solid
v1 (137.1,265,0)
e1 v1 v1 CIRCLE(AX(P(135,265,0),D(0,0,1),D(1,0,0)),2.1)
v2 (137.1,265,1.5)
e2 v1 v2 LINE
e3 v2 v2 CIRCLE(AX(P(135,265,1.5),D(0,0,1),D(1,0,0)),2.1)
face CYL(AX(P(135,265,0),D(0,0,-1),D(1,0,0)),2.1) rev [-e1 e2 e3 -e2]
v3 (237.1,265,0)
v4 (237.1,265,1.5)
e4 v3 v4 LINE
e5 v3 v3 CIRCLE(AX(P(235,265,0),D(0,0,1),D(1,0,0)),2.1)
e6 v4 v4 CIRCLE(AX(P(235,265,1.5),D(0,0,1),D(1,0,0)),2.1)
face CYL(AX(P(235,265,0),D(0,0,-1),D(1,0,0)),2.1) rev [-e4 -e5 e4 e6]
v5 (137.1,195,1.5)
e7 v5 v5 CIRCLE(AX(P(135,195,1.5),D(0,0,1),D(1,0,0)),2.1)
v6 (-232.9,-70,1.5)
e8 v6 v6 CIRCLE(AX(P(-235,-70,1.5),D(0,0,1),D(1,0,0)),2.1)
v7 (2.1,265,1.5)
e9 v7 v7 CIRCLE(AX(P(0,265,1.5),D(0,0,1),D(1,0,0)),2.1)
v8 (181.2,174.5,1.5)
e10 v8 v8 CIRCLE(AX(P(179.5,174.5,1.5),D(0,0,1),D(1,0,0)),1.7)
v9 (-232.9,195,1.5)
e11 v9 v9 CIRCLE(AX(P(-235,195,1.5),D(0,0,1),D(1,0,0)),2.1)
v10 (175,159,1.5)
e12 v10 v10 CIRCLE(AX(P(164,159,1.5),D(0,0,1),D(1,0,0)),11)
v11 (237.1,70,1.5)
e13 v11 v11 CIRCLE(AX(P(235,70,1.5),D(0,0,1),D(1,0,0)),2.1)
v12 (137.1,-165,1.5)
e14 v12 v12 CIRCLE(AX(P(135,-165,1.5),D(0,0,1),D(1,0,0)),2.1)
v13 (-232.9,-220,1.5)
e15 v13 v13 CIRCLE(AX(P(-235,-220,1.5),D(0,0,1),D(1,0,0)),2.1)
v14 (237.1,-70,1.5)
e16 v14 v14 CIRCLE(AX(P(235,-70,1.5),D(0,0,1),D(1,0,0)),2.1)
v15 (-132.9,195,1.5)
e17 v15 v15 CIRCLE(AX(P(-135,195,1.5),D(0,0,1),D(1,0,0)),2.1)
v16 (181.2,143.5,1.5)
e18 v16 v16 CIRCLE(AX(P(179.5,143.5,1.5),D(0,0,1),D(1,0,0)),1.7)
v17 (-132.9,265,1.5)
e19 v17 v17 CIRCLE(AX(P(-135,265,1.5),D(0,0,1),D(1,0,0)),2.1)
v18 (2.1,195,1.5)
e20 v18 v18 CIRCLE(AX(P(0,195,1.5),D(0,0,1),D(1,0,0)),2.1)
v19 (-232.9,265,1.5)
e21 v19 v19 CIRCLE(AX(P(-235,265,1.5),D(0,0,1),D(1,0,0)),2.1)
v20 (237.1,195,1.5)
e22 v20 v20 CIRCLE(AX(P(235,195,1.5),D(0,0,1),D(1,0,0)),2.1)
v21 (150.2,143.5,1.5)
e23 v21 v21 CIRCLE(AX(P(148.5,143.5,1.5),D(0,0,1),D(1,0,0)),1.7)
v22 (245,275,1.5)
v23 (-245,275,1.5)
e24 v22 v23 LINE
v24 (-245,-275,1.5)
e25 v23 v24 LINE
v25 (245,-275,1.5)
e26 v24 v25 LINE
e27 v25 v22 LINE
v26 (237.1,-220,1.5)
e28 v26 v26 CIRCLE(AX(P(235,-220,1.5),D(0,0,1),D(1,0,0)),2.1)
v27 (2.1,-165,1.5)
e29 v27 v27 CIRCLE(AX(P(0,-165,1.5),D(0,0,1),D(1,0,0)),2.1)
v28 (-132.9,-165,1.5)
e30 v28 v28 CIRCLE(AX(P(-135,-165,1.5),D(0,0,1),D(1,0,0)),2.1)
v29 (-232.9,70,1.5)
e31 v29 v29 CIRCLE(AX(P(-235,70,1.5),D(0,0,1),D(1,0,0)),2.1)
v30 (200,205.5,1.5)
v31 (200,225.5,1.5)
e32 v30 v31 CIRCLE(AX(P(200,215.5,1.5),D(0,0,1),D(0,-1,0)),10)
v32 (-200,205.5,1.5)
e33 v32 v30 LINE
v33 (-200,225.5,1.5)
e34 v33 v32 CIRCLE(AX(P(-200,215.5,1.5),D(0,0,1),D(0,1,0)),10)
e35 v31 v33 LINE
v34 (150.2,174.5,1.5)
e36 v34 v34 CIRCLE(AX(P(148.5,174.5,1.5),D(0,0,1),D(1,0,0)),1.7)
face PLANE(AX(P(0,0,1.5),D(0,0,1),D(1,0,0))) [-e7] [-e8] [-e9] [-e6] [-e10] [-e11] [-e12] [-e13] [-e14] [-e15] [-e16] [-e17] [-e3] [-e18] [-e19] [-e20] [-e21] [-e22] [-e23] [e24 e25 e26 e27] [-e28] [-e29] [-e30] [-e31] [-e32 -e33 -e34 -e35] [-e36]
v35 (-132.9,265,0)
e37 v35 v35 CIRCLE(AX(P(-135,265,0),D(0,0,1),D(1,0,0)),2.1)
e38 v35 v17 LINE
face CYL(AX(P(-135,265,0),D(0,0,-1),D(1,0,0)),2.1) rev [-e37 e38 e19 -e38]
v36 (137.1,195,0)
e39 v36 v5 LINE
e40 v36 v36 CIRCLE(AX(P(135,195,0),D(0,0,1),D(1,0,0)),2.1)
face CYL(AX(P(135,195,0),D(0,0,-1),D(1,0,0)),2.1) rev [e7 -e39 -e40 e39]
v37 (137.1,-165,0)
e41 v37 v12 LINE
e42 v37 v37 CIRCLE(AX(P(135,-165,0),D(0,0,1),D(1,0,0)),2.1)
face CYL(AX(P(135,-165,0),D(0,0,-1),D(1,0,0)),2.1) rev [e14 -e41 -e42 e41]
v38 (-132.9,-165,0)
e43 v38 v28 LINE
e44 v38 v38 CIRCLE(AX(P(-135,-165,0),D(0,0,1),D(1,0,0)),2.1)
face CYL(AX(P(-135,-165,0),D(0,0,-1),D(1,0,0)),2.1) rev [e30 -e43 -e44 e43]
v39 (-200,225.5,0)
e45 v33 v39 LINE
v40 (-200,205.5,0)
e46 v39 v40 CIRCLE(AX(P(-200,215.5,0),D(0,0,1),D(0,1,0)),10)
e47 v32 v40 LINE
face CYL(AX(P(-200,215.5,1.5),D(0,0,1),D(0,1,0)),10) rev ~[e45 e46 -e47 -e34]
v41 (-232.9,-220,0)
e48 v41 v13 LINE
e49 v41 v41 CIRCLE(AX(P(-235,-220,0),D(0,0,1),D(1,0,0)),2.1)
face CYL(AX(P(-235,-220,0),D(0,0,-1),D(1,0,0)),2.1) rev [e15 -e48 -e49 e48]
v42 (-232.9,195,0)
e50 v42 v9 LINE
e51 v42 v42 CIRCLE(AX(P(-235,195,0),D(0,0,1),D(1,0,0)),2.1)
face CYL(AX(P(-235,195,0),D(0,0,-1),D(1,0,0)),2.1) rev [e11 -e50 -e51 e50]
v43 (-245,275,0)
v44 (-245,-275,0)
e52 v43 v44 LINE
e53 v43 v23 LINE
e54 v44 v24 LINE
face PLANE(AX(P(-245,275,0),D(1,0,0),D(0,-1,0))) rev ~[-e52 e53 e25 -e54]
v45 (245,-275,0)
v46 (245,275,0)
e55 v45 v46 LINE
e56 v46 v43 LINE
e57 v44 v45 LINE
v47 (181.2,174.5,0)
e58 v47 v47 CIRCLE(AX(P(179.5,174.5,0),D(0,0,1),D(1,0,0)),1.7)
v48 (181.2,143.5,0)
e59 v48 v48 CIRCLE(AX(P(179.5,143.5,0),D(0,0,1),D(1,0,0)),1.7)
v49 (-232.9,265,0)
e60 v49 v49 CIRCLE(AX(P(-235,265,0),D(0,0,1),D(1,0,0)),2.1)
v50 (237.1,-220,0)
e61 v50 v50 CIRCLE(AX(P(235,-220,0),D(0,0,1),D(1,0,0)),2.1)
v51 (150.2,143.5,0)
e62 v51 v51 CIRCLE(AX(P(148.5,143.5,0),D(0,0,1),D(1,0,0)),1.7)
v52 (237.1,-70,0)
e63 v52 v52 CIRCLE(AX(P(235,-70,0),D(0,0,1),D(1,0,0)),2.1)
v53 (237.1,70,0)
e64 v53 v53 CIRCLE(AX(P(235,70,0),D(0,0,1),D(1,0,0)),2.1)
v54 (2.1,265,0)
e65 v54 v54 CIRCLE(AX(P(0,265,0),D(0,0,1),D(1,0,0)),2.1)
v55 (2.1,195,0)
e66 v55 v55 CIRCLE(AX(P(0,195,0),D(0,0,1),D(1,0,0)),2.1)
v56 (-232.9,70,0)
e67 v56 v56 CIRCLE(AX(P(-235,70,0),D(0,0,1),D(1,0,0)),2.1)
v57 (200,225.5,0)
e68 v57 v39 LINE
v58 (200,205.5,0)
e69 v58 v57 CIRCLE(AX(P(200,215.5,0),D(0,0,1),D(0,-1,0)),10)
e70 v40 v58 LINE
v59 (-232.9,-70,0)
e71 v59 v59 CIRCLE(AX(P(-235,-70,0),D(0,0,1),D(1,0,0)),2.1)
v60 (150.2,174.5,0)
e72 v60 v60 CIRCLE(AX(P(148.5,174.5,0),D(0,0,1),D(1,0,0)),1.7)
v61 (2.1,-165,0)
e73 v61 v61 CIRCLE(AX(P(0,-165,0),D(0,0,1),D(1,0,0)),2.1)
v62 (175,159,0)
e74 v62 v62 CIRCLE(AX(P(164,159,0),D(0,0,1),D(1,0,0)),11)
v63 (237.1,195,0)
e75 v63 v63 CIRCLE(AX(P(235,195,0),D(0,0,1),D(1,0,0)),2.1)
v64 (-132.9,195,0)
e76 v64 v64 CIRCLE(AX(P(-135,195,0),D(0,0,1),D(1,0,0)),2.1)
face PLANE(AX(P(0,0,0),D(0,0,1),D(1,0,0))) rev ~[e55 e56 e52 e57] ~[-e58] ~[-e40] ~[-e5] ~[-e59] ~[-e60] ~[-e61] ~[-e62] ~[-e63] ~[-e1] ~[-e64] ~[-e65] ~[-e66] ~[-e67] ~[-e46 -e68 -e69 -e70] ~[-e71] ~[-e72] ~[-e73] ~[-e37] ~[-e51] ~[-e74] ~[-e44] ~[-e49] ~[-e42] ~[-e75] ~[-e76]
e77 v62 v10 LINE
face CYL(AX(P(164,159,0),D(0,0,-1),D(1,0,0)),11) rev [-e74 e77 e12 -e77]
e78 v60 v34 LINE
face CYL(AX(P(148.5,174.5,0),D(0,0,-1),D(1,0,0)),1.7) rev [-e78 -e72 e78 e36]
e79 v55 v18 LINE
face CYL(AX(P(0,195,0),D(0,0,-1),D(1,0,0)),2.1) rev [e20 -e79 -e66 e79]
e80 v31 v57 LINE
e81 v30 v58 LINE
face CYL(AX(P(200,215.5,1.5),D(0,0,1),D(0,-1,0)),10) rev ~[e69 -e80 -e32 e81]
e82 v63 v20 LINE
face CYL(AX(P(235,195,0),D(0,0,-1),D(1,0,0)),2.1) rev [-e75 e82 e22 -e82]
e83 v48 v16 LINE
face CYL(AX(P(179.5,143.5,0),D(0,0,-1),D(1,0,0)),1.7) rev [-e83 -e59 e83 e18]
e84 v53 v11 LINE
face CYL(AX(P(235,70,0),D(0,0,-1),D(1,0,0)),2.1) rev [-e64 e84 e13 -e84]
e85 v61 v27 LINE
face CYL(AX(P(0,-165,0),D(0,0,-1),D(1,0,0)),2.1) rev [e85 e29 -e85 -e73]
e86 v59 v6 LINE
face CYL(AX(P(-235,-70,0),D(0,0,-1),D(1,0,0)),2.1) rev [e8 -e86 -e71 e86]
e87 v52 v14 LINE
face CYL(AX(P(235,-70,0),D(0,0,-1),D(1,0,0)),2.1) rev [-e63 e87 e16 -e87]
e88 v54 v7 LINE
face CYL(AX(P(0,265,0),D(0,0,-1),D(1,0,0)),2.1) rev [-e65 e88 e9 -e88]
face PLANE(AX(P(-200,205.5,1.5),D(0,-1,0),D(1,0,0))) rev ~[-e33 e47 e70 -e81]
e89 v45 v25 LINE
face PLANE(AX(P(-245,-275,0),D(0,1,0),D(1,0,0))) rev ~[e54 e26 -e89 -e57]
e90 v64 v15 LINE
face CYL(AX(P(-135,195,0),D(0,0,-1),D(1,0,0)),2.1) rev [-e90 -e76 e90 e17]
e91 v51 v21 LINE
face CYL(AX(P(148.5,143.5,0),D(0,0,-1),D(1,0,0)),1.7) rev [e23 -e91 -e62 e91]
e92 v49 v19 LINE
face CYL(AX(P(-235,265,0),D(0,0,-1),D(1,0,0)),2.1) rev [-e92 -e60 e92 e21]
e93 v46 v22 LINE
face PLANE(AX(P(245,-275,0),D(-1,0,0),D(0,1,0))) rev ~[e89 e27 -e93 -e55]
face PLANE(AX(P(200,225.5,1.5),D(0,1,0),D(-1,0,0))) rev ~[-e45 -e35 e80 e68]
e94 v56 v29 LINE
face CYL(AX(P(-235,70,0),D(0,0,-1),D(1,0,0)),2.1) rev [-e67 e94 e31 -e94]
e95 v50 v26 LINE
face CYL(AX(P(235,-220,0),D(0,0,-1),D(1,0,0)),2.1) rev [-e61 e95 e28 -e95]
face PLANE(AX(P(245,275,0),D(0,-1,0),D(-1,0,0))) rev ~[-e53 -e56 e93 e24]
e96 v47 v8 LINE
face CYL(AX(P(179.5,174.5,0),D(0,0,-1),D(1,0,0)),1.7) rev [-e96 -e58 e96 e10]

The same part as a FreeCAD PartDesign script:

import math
import FreeCAD as App
import Part
import Sketcher
Q = App.Units.Quantity

doc = App.newDocument("Part")
body = doc.addObject("PartDesign::Body", "Body")

sketch1 = body.newObject("Sketcher::SketchObject", "Sketch")
sketch1.AttachmentSupport = (doc.getObject("XY_Plane"), [""])
sketch1.MapMode = "FlatFace"
sketch1.addGeometry([
    Part.LineSegment(App.Vector(-245, 275, 0), App.Vector(-245, -275, 0)),
    Part.LineSegment(App.Vector(-245, -275, 0), App.Vector(245, -275, 0)),
    Part.LineSegment(App.Vector(245, -275, 0), App.Vector(245, 275, 0)),
    Part.LineSegment(App.Vector(245, 275, 0), App.Vector(-245, 275, 0)),
    Part.Circle(App.Vector(-235, -220, 0), App.Vector(0, 0, 1), 2.1),
    Part.Circle(App.Vector(-135, -165, 0), App.Vector(0, 0, 1), 2.1),
    Part.Circle(App.Vector(-235, -70, 0), App.Vector(0, 0, 1), 2.1),
    Part.Circle(App.Vector(0, -165, 0), App.Vector(0, 0, 1), 2.1),
    Part.Circle(App.Vector(235, -220, 0), App.Vector(0, 0, 1), 2.1),
    Part.Circle(App.Vector(135, -165, 0), App.Vector(0, 0, 1), 2.1),
    Part.Circle(App.Vector(235, -70, 0), App.Vector(0, 0, 1), 2.1),
    Part.Circle(App.Vector(-235, 70, 0), App.Vector(0, 0, 1), 2.1),
    Part.Circle(App.Vector(-235, 195, 0), App.Vector(0, 0, 1), 2.1),
    Part.Circle(App.Vector(-135, 195, 0), App.Vector(0, 0, 1), 2.1),
    Part.Circle(App.Vector(-235, 265, 0), App.Vector(0, 0, 1), 2.1),
    Part.Circle(App.Vector(-135, 265, 0), App.Vector(0, 0, 1), 2.1),
    Part.Circle(App.Vector(235, 70, 0), App.Vector(0, 0, 1), 2.1),
    Part.Circle(App.Vector(0, 195, 0), App.Vector(0, 0, 1), 2.1),
    Part.Circle(App.Vector(0, 265, 0), App.Vector(0, 0, 1), 2.1),
    Part.Circle(App.Vector(148.5, 143.5, 0), App.Vector(0, 0, 1), 1.7),
    Part.Circle(App.Vector(179.5, 143.5, 0), App.Vector(0, 0, 1), 1.7),
    Part.Circle(App.Vector(164, 159, 0), App.Vector(0, 0, 1), 11),
    Part.Circle(App.Vector(148.5, 174.5, 0), App.Vector(0, 0, 1), 1.7),
    Part.Circle(App.Vector(135, 195, 0), App.Vector(0, 0, 1), 2.1),
    Part.Circle(App.Vector(179.5, 174.5, 0), App.Vector(0, 0, 1), 1.7),
    Part.Circle(App.Vector(235, 195, 0), App.Vector(0, 0, 1), 2.1),
    Part.Circle(App.Vector(135, 265, 0), App.Vector(0, 0, 1), 2.1),
    Part.Circle(App.Vector(235, 265, 0), App.Vector(0, 0, 1), 2.1),
], False)
sketch1.addConstraint([
    Sketcher.Constraint("Coincident", 0, 2, 1, 1),
    Sketcher.Constraint("Coincident", 1, 2, 2, 1),
    Sketcher.Constraint("Coincident", 2, 2, 3, 1),
    Sketcher.Constraint("Coincident", 3, 2, 0, 1),
    Sketcher.Constraint("Vertical", 0),
    Sketcher.Constraint("Horizontal", 1),
    Sketcher.Constraint("Vertical", 2),
    Sketcher.Constraint("Horizontal", 3),
    Sketcher.Constraint("Equal", 4, 5),
    Sketcher.Constraint("Equal", 5, 6),
    Sketcher.Constraint("Equal", 6, 7),
    Sketcher.Constraint("Equal", 7, 8),
    Sketcher.Constraint("Equal", 8, 9),
    Sketcher.Constraint("Equal", 9, 10),
    Sketcher.Constraint("Equal", 10, 11),
    Sketcher.Constraint("Equal", 11, 12),
    Sketcher.Constraint("Equal", 12, 13),
    Sketcher.Constraint("Equal", 13, 14),
    Sketcher.Constraint("Equal", 14, 15),
    Sketcher.Constraint("Equal", 15, 16),
    Sketcher.Constraint("Equal", 16, 17),
    Sketcher.Constraint("Equal", 17, 18),
    Sketcher.Constraint("Equal", 19, 20),
    Sketcher.Constraint("Equal", 20, 22),
    Sketcher.Constraint("Equal", 18, 23),
    Sketcher.Constraint("Equal", 22, 24),
    Sketcher.Constraint("Equal", 23, 25),
    Sketcher.Constraint("Equal", 25, 26),
    Sketcher.Constraint("Equal", 26, 27),
    Sketcher.Constraint("Symmetric", 10, 3, 11, 3, -1, 1),
    Sketcher.Constraint("Symmetric", 6, 3, 16, 3, -1, 1),
    Sketcher.Constraint("Symmetric", 0, 2, 2, 2, -1, 1),
    Sketcher.Constraint("Symmetric", 4, 3, 8, 3, -2),
    Sketcher.Constraint("Symmetric", 5, 3, 9, 3, -2),
    Sketcher.Constraint("Symmetric", 6, 3, 10, 3, -2),
    Sketcher.Constraint("Symmetric", 13, 3, 23, 3, -2),
    Sketcher.Constraint("Symmetric", 12, 3, 25, 3, -2),
    Sketcher.Constraint("Symmetric", 15, 3, 26, 3, -2),
    Sketcher.Constraint("Symmetric", 14, 3, 27, 3, -2),
    Sketcher.Constraint("PointOnObject", 7, 3, -2),
    Sketcher.Constraint("PointOnObject", 17, 3, -2),
    Sketcher.Constraint("PointOnObject", 18, 3, -2),
    Sketcher.Constraint("Horizontal", 5, 3, 7, 3),
    Sketcher.Constraint("Horizontal", 12, 3, 13, 3),
    Sketcher.Constraint("Horizontal", 14, 3, 15, 3),
    Sketcher.Constraint("Horizontal", 13, 3, 17, 3),
    Sketcher.Constraint("Horizontal", 15, 3, 18, 3),
    Sketcher.Constraint("Horizontal", 19, 3, 20, 3),
    Sketcher.Constraint("Horizontal", 22, 3, 24, 3),
    Sketcher.Constraint("Vertical", 4, 3, 6, 3),
    Sketcher.Constraint("Vertical", 11, 3, 12, 3),
    Sketcher.Constraint("Vertical", 5, 3, 13, 3),
    Sketcher.Constraint("Vertical", 12, 3, 14, 3),
    Sketcher.Constraint("Vertical", 13, 3, 15, 3),
    Sketcher.Constraint("Vertical", 19, 3, 22, 3),
    Sketcher.Constraint("Vertical", 20, 3, 24, 3),
    Sketcher.Constraint("Diameter", 21, Q("22 mm")),
    Sketcher.Constraint("Diameter", 4, Q("4.2 mm")),
    Sketcher.Constraint("Diameter", 19, Q("3.4 mm")),
    Sketcher.Constraint("DistanceX", 1, 1, 1, 2, Q("490 mm")),
    Sketcher.Constraint("DistanceY", 0, 2, 0, 1, Q("550 mm")),
    Sketcher.Constraint("DistanceY", 6, 3, -1, 1, Q("70 mm")),
    Sketcher.Constraint("DistanceY", 4, 3, 5, 3, Q("55 mm")),
    Sketcher.Constraint("DistanceY", 12, 3, 14, 3, Q("70 mm")),
    Sketcher.Constraint("DistanceX", 19, 3, 20, 3, Q("31 mm")),
    Sketcher.Constraint("DistanceY", 19, 3, 22, 3, Q("31 mm")),
    Sketcher.Constraint("DistanceX", 0, 2, 4, 3, Q("10 mm")),
    Sketcher.Constraint("DistanceY", 0, 2, 4, 3, Q("55 mm")),
    Sketcher.Constraint("DistanceX", 0, 2, 5, 3, Q("110 mm")),
    Sketcher.Constraint("DistanceY", 27, 3, 2, 2, Q("10 mm")),
    Sketcher.Constraint("DistanceX", -1, 1, 21, 3, Q("164 mm")),
    Sketcher.Constraint("DistanceY", -1, 1, 21, 3, Q("159 mm")),
    Sketcher.Constraint("DistanceX", -1, 1, 19, 3, Q("148.5 mm")),
    Sketcher.Constraint("DistanceY", -1, 1, 19, 3, Q("143.5 mm")),
])
pad1 = body.newObject("PartDesign::Pad", "Pad")
pad1.Profile = sketch1
pad1.Length = 1.5

sketch2 = body.newObject("Sketcher::SketchObject", "Sketch001")
sketch2.AttachmentSupport = (doc.getObject("XY_Plane"), [""])
sketch2.MapMode = "FlatFace"
sketch2.AttachmentOffset = App.Placement(App.Vector(0, 0, 1.5), App.Rotation())
sketch2.addGeometry([
    Part.ArcOfCircle(Part.Circle(App.Vector(-200, 216, 0), App.Vector(0, 0, 1), 10), math.radians(90), math.radians(270)),
    Part.LineSegment(App.Vector(-200, 206, 0), App.Vector(200, 206, 0)),
    Part.ArcOfCircle(Part.Circle(App.Vector(200, 216, 0), App.Vector(0, 0, 1), 10), math.radians(-90), math.radians(90)),
    Part.LineSegment(App.Vector(200, 226, 0), App.Vector(-200, 226, 0)),
], False)
sketch2.addConstraint([
    Sketcher.Constraint("Tangent", 0, 2, 1, 1),
    Sketcher.Constraint("Tangent", 1, 2, 2, 1),
    Sketcher.Constraint("Tangent", 2, 2, 3, 1),
    Sketcher.Constraint("Tangent", 3, 2, 0, 1),
    Sketcher.Constraint("Horizontal", 1),
    Sketcher.Constraint("Horizontal", 3),
    Sketcher.Constraint("Radius", 0, Q("10 mm")),
    Sketcher.Constraint("DistanceX", 1, 1, 1, 2, Q("400 mm")),
    Sketcher.Constraint("DistanceX", 0, 3, -1, 1, Q("200 mm")),
    Sketcher.Constraint("DistanceY", -1, 1, 0, 3, Q("215.5 mm")),
])
pocket1 = body.newObject("PartDesign::Pocket", "Pocket")
pocket1.Profile = sketch2
pocket1.Length = 1.5

doc.recompute()
